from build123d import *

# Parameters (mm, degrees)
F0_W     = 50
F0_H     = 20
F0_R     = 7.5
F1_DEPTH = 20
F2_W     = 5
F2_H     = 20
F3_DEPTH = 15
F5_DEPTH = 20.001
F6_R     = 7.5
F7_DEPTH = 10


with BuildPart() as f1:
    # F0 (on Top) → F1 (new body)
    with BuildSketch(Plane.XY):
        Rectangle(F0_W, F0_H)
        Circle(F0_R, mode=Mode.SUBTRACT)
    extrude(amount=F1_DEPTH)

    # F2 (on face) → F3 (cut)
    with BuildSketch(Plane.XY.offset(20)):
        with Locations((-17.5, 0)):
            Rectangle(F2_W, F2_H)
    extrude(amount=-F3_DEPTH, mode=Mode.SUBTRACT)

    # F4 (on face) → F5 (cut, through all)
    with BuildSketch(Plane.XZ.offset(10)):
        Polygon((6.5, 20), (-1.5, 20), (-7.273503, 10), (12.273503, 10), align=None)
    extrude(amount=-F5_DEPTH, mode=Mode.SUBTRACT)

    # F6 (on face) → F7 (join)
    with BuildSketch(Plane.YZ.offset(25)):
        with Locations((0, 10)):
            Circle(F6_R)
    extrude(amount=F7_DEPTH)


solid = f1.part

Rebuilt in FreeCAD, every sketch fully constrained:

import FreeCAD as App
import Part
import Sketcher

V = App.Vector
Q = App.Units.Quantity


def add_polygon(sketch, points):
    """Adds a closed chain of lines whose ends are joined by coincident constraints."""
    first, n = sketch.GeometryCount, len(points)
    for a, b in zip(points, points[1:] + points[:1]):
        sketch.addGeometry(Part.LineSegment(App.Vector(*a, 0), App.Vector(*b, 0)), False)
    for i in range(n):
        sketch.addConstraint(Sketcher.Constraint("Coincident", first + i, 2, first + (i + 1) % n, 1))

doc = App.newDocument("Part")
params = doc.addObject("Spreadsheet::Sheet", "Params")
for row, (alias, value) in enumerate([
    ("sketch1_diameter", "15 mm"),
    ("sketch1_width", "50 mm"),
    ("sketch1_height", "20 mm"),
    ("pad1_length", "20 mm"),
    ("sketch2_width", "5 mm"),
    ("sketch2_height", "20 mm"),
    ("pocket1_length", "15 mm"),
    ("sketch3_width", "8 mm"),
    ("sketch4_diameter", "15 mm"),
    ("pad2_length", "10 mm"),
], start=1):
    params.set(f"A{row}", alias)
    params.set(f"B{row}", "=" + value)
    params.setAlias(f"B{row}", alias)

body = doc.addObject("PartDesign::Body", "Body")

# Sketch on XY plane
sketch1 = doc.addObject("Sketcher::SketchObject", "Sketch")
body.addObject(sketch1)
sketch1.AttachmentSupport = (doc.XY_Plane, [""])
sketch1.MapMode = "FlatFace"
add_polygon(sketch1, [(-25, 10), (-25, -10), (25, -10), (25, 10)])  # lines 0-3
sketch1.addGeometry(Part.Circle(V(0, 0, 0), V(0, 0, 1), 8), False)  # 4
sketch1.addConstraint([
    Sketcher.Constraint("Vertical", 0),
    Sketcher.Constraint("Horizontal", 1),
    Sketcher.Constraint("Vertical", 2),
    Sketcher.Constraint("Horizontal", 3),
    Sketcher.Constraint("Coincident", 4, 3, -1, 1),
    Sketcher.Constraint("Symmetric", 0, 2, 2, 2, -1, 1),
    Sketcher.Constraint("Diameter", 4, Q("15 mm")),
    Sketcher.Constraint("DistanceX", 1, 1, 1, 2, Q("50 mm")),
    Sketcher.Constraint("DistanceY", 0, 2, 0, 1, Q("20 mm")),
])
sketch1.setExpression("Constraints[10]", "Params.sketch1_diameter")
sketch1.setExpression("Constraints[11]", "Params.sketch1_width")
sketch1.setExpression("Constraints[12]", "Params.sketch1_height")
pad1 = doc.addObject("PartDesign::Pad", "Pad")
body.addObject(pad1)
pad1.Profile = sketch1
pad1.setExpression("Length", "Params.pad1_length")

# Sketch on XY plane
sketch2 = doc.addObject("Sketcher::SketchObject", "Sketch001")
body.addObject(sketch2)
sketch2.AttachmentSupport = (doc.XY_Plane, [""])
sketch2.MapMode = "FlatFace"
sketch2.AttachmentOffset = App.Placement(V(0, 0, 20), App.Rotation())
add_polygon(sketch2, [(-20, 10), (-20, -10), (-15, -10), (-15, 10)])  # lines 0-3
sketch2.addConstraint([
    Sketcher.Constraint("Vertical", 0),
    Sketcher.Constraint("Horizontal", 1),
    Sketcher.Constraint("Vertical", 2),
    Sketcher.Constraint("Horizontal", 3),
    Sketcher.Constraint("DistanceX", 1, 1, 1, 2, Q("5 mm")),
    Sketcher.Constraint("DistanceY", 0, 2, 0, 1, Q("20 mm")),
    Sketcher.Constraint("DistanceX", 0, 2, -1, 1, Q("20 mm")),
    Sketcher.Constraint("DistanceY", 0, 2, -1, 1, Q("10 mm")),
])
sketch2.setExpression("Constraints[8]", "Params.sketch2_width")
sketch2.setExpression("Constraints[9]", "Params.sketch2_height")
pocket1 = doc.addObject("PartDesign::Pocket", "Pocket")
body.addObject(pocket1)
pocket1.Profile = sketch2
pocket1.setExpression("Length", "Params.pocket1_length")

# Sketch on XZ plane
sketch3 = doc.addObject("Sketcher::SketchObject", "Sketch002")
body.addObject(sketch3)
sketch3.AttachmentSupport = (doc.XZ_Plane, [""])
sketch3.MapMode = "FlatFace"
sketch3.AttachmentOffset = App.Placement(V(0, 0, 10), App.Rotation())
add_polygon(sketch3, [(6, 20), (-2, 20), (-7, 10), (12, 10)])  # lines 0-3
sketch3.addConstraint([
    Sketcher.Constraint("Horizontal", 0),
    Sketcher.Constraint("Horizontal", 2),
    Sketcher.Constraint("Equal", 1, 3),
    Sketcher.Constraint("DistanceX", 0, 2, 0, 1, Q("8 mm")),
    Sketcher.Constraint("Angle", 1, Q("-120.000001 deg")),
    Sketcher.Constraint("DistanceY", -1, 1, 0, 2, Q("20 mm")),
    Sketcher.Constraint("DistanceY", -1, 1, 1, 2, Q("10 mm")),
    Sketcher.Constraint("DistanceX", 0, 2, -1, 1, Q("1.5 mm")),
])
sketch3.setExpression("Constraints[7]", "Params.sketch3_width")
pocket2 = doc.addObject("PartDesign::Pocket", "Pocket001")
body.addObject(pocket2)
pocket2.Profile = sketch3
pocket2.Type = "ThroughAll"

# Sketch on YZ plane
sketch4 = doc.addObject("Sketcher::SketchObject", "Sketch003")
body.addObject(sketch4)
sketch4.AttachmentSupport = (doc.YZ_Plane, [""])
sketch4.MapMode = "FlatFace"
sketch4.AttachmentOffset = App.Placement(V(0, 0, 25), App.Rotation())
sketch4.addGeometry(Part.Circle(V(0, 10, 0), V(0, 0, 1), 8), False)
sketch4.addConstraint([
    Sketcher.Constraint("PointOnObject", 0, 3, -2),
    Sketcher.Constraint("Diameter", 0, Q("15 mm")),
    Sketcher.Constraint("DistanceY", -1, 1, 0, 3, Q("10 mm")),
])
sketch4.setExpression("Constraints[1]", "Params.sketch4_diameter")
pad2 = doc.addObject("PartDesign::Pad", "Pad001")
body.addObject(pad2)
pad2.Profile = sketch4
pad2.setExpression("Length", "Params.pad2_length")

doc.recompute()
